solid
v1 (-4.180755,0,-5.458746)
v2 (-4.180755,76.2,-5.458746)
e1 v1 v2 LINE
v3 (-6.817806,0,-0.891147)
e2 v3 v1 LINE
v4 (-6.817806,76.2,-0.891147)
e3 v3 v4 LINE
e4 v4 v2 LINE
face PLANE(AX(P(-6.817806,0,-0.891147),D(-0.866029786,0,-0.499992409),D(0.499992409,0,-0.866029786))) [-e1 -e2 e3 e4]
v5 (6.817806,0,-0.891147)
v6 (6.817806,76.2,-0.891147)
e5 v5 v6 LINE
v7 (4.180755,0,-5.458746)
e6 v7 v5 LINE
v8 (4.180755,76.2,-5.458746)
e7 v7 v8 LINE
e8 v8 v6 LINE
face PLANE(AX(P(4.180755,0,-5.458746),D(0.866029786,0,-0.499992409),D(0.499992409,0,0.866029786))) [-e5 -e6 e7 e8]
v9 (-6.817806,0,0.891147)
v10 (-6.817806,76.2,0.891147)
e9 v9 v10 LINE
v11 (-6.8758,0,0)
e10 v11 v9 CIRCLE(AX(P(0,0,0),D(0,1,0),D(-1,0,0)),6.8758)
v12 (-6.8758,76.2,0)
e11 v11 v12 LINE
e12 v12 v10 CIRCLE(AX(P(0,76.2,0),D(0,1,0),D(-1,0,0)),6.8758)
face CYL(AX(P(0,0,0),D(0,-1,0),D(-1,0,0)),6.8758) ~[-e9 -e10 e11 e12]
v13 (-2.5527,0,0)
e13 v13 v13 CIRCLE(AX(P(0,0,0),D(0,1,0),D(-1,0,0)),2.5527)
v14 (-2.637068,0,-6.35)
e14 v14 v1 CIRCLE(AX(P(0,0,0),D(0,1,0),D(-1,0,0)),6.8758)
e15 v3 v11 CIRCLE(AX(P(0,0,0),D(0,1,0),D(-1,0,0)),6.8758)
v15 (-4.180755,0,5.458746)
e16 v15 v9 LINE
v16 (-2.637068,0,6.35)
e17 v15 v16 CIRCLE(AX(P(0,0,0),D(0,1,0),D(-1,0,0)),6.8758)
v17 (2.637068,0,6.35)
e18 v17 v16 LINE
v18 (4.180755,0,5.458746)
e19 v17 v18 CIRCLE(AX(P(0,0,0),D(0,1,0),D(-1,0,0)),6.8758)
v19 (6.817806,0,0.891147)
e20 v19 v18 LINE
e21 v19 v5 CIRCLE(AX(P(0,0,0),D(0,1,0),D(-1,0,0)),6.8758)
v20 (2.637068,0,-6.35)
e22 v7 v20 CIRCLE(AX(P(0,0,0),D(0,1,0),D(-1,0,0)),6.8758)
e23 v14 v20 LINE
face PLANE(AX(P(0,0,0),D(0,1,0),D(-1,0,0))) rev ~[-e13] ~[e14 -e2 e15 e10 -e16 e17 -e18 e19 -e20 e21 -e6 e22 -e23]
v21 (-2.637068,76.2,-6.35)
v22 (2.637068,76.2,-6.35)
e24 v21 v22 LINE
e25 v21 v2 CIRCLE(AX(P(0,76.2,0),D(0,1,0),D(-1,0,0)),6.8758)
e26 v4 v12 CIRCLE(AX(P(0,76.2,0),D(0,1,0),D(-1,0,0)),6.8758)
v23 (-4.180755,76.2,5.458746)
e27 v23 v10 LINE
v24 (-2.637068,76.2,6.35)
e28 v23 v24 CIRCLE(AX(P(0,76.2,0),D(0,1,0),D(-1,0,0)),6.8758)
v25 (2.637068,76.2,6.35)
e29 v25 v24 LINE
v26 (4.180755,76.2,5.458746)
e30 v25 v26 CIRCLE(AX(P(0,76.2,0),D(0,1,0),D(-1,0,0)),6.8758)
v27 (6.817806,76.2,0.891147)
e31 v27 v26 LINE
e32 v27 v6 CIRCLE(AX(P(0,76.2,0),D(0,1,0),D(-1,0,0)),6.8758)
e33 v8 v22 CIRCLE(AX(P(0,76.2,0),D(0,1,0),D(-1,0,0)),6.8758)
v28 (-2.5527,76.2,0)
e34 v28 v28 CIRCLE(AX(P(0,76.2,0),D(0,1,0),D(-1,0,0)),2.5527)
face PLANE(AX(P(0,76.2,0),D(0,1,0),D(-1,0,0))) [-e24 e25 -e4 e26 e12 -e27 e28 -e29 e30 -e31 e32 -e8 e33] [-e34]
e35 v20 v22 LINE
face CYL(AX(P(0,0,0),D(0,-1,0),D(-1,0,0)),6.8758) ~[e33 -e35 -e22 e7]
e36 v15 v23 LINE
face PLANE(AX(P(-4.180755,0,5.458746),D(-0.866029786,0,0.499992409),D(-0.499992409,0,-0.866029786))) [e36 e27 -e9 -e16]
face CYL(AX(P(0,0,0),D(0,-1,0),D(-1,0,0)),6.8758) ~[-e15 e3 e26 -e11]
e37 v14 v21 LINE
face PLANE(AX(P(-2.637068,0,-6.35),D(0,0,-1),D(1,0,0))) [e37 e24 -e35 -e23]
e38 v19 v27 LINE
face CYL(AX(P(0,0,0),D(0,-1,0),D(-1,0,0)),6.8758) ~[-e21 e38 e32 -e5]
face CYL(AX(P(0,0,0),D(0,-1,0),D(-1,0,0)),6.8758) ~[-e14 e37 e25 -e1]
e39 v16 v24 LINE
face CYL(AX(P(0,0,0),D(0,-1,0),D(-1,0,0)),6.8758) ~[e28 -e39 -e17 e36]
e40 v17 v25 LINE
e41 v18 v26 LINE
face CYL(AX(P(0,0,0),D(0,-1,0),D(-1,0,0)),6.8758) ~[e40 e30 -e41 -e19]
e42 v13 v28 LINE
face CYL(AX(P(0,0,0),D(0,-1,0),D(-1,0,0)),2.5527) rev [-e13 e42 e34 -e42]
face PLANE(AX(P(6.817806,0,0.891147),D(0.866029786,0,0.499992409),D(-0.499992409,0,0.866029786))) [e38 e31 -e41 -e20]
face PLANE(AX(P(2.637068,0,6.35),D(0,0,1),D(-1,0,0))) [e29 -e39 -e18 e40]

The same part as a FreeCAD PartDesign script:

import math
import FreeCAD as App
import Part
import Sketcher
from FreeCAD import Vector
Q = App.Units.Quantity

doc = App.newDocument("Part")
body = doc.addObject("PartDesign::Body", "Body")

# Sketch on XZ plane
sketch1 = doc.addObject("Sketcher::SketchObject", "Sketch")
body.addObject(sketch1)
sketch1.AttachmentSupport = (doc.XZ_Plane, [""])
sketch1.MapMode = "FlatFace"
sketch1.addGeometry([
    Part.LineSegment(Vector(-4.2, -5.5, 0), Vector(-6.8, -0.9, 0)),  # 0
    Part.ArcOfCircle(Part.Circle(Vector(0, 0, 0), Vector(0, 0, 1), 6.9), math.radians(172.55), math.radians(187.45)),  # 1
    Part.LineSegment(Vector(-6.8, 0.9, 0), Vector(-4.2, 5.5, 0)),  # 2
    Part.ArcOfCircle(Part.Circle(Vector(0, 0, 0), Vector(0, 0, 1), 6.9), math.radians(112.55), math.radians(127.45)),  # 3
    Part.LineSegment(Vector(-2.6, 6.3, 0), Vector(2.6, 6.3, 0)),  # 4
    Part.ArcOfCircle(Part.Circle(Vector(0, 0, 0), Vector(0, 0, 1), 6.9), math.radians(52.55), math.radians(67.45)),  # 5
    Part.LineSegment(Vector(4.2, 5.5, 0), Vector(6.8, 0.9, 0)),  # 6
    Part.ArcOfCircle(Part.Circle(Vector(0, 0, 0), Vector(0, 0, 1), 6.9), math.radians(-7.45), math.radians(7.45)),  # 7
    Part.LineSegment(Vector(6.8, -0.9, 0), Vector(4.2, -5.5, 0)),  # 8
    Part.ArcOfCircle(Part.Circle(Vector(0, 0, 0), Vector(0, 0, 1), 6.9), math.radians(-67.45), math.radians(-52.55)),  # 9
    Part.LineSegment(Vector(2.6, -6.3, 0), Vector(-2.6, -6.3, 0)),  # 10
    Part.ArcOfCircle(Part.Circle(Vector(0, 0, 0), Vector(0, 0, 1), 6.9), math.radians(-127.45), math.radians(-112.55)),  # 11
    Part.Circle(Vector(0, 0, 0), Vector(0, 0, 1), 2.6),  # 12
], False)
sketch1.addConstraint([
    Sketcher.Constraint("Coincident", 0, 2, 1, 2),
    Sketcher.Constraint("Coincident", 1, 1, 2, 1),
    Sketcher.Constraint("Coincident", 2, 2, 3, 2),
    Sketcher.Constraint("Coincident", 3, 1, 4, 1),
    Sketcher.Constraint("Coincident", 4, 2, 5, 2),
    Sketcher.Constraint("Coincident", 5, 1, 6, 1),
    Sketcher.Constraint("Coincident", 6, 2, 7, 2),
    Sketcher.Constraint("Coincident", 7, 1, 8, 1),
    Sketcher.Constraint("Coincident", 8, 2, 9, 2),
    Sketcher.Constraint("Coincident", 9, 1, 10, 1),
    Sketcher.Constraint("Coincident", 10, 2, 11, 2),
    Sketcher.Constraint("Coincident", 11, 1, 0, 1),
    Sketcher.Constraint("Horizontal", 4),
    Sketcher.Constraint("Horizontal", 10),
    Sketcher.Constraint("Coincident", 1, 3, -1, 1),
    Sketcher.Constraint("Coincident", 3, 3, -1, 1),
    Sketcher.Constraint("Coincident", 5, 3, -1, 1),
    Sketcher.Constraint("Coincident", 7, 3, -1, 1),
    Sketcher.Constraint("Coincident", 9, 3, -1, 1),
    Sketcher.Constraint("Coincident", 11, 3, -1, 1),
    Sketcher.Constraint("Coincident", 12, 3, -1, 1),
    Sketcher.Constraint("Equal", 1, 3),
    Sketcher.Constraint("Equal", 3, 5),
    Sketcher.Constraint("Equal", 5, 7),
    Sketcher.Constraint("Equal", 7, 9),
    Sketcher.Constraint("Equal", 9, 11),
    Sketcher.Constraint("Parallel", 0, 6),
    Sketcher.Constraint("Parallel", 2, 8),
    Sketcher.Constraint("Horizontal", 2, 2, 5, 1),
    Sketcher.Constraint("Horizontal", 1, 1, 6, 2),
    Sketcher.Constraint("Horizontal", 0, 2, 7, 1),
    Sketcher.Constraint("Vertical", 0, 2, 1, 1),
    Sketcher.Constraint("Vertical", 4, 2, 9, 1),
    Sketcher.Constraint("Diameter", 12, Q("0.201 in")),
    Sketcher.Constraint("Radius", 1, Q("0.2707 in")),
    Sketcher.Constraint("DistanceY", -1, 1, 3, 1, Q("0.25 in")),
    Sketcher.Constraint("DistanceY", 0, 2, 2, 2, Q("0.25 in")),
    Sketcher.Constraint("Angle", 0, Q("119.9995 deg")),
])
pad1 = doc.addObject("PartDesign::Pad", "Pad")
body.addObject(pad1)
pad1.Profile = sketch1
pad1.Length = Q("3 in")
pad1.Reversed = True

doc.recompute()
